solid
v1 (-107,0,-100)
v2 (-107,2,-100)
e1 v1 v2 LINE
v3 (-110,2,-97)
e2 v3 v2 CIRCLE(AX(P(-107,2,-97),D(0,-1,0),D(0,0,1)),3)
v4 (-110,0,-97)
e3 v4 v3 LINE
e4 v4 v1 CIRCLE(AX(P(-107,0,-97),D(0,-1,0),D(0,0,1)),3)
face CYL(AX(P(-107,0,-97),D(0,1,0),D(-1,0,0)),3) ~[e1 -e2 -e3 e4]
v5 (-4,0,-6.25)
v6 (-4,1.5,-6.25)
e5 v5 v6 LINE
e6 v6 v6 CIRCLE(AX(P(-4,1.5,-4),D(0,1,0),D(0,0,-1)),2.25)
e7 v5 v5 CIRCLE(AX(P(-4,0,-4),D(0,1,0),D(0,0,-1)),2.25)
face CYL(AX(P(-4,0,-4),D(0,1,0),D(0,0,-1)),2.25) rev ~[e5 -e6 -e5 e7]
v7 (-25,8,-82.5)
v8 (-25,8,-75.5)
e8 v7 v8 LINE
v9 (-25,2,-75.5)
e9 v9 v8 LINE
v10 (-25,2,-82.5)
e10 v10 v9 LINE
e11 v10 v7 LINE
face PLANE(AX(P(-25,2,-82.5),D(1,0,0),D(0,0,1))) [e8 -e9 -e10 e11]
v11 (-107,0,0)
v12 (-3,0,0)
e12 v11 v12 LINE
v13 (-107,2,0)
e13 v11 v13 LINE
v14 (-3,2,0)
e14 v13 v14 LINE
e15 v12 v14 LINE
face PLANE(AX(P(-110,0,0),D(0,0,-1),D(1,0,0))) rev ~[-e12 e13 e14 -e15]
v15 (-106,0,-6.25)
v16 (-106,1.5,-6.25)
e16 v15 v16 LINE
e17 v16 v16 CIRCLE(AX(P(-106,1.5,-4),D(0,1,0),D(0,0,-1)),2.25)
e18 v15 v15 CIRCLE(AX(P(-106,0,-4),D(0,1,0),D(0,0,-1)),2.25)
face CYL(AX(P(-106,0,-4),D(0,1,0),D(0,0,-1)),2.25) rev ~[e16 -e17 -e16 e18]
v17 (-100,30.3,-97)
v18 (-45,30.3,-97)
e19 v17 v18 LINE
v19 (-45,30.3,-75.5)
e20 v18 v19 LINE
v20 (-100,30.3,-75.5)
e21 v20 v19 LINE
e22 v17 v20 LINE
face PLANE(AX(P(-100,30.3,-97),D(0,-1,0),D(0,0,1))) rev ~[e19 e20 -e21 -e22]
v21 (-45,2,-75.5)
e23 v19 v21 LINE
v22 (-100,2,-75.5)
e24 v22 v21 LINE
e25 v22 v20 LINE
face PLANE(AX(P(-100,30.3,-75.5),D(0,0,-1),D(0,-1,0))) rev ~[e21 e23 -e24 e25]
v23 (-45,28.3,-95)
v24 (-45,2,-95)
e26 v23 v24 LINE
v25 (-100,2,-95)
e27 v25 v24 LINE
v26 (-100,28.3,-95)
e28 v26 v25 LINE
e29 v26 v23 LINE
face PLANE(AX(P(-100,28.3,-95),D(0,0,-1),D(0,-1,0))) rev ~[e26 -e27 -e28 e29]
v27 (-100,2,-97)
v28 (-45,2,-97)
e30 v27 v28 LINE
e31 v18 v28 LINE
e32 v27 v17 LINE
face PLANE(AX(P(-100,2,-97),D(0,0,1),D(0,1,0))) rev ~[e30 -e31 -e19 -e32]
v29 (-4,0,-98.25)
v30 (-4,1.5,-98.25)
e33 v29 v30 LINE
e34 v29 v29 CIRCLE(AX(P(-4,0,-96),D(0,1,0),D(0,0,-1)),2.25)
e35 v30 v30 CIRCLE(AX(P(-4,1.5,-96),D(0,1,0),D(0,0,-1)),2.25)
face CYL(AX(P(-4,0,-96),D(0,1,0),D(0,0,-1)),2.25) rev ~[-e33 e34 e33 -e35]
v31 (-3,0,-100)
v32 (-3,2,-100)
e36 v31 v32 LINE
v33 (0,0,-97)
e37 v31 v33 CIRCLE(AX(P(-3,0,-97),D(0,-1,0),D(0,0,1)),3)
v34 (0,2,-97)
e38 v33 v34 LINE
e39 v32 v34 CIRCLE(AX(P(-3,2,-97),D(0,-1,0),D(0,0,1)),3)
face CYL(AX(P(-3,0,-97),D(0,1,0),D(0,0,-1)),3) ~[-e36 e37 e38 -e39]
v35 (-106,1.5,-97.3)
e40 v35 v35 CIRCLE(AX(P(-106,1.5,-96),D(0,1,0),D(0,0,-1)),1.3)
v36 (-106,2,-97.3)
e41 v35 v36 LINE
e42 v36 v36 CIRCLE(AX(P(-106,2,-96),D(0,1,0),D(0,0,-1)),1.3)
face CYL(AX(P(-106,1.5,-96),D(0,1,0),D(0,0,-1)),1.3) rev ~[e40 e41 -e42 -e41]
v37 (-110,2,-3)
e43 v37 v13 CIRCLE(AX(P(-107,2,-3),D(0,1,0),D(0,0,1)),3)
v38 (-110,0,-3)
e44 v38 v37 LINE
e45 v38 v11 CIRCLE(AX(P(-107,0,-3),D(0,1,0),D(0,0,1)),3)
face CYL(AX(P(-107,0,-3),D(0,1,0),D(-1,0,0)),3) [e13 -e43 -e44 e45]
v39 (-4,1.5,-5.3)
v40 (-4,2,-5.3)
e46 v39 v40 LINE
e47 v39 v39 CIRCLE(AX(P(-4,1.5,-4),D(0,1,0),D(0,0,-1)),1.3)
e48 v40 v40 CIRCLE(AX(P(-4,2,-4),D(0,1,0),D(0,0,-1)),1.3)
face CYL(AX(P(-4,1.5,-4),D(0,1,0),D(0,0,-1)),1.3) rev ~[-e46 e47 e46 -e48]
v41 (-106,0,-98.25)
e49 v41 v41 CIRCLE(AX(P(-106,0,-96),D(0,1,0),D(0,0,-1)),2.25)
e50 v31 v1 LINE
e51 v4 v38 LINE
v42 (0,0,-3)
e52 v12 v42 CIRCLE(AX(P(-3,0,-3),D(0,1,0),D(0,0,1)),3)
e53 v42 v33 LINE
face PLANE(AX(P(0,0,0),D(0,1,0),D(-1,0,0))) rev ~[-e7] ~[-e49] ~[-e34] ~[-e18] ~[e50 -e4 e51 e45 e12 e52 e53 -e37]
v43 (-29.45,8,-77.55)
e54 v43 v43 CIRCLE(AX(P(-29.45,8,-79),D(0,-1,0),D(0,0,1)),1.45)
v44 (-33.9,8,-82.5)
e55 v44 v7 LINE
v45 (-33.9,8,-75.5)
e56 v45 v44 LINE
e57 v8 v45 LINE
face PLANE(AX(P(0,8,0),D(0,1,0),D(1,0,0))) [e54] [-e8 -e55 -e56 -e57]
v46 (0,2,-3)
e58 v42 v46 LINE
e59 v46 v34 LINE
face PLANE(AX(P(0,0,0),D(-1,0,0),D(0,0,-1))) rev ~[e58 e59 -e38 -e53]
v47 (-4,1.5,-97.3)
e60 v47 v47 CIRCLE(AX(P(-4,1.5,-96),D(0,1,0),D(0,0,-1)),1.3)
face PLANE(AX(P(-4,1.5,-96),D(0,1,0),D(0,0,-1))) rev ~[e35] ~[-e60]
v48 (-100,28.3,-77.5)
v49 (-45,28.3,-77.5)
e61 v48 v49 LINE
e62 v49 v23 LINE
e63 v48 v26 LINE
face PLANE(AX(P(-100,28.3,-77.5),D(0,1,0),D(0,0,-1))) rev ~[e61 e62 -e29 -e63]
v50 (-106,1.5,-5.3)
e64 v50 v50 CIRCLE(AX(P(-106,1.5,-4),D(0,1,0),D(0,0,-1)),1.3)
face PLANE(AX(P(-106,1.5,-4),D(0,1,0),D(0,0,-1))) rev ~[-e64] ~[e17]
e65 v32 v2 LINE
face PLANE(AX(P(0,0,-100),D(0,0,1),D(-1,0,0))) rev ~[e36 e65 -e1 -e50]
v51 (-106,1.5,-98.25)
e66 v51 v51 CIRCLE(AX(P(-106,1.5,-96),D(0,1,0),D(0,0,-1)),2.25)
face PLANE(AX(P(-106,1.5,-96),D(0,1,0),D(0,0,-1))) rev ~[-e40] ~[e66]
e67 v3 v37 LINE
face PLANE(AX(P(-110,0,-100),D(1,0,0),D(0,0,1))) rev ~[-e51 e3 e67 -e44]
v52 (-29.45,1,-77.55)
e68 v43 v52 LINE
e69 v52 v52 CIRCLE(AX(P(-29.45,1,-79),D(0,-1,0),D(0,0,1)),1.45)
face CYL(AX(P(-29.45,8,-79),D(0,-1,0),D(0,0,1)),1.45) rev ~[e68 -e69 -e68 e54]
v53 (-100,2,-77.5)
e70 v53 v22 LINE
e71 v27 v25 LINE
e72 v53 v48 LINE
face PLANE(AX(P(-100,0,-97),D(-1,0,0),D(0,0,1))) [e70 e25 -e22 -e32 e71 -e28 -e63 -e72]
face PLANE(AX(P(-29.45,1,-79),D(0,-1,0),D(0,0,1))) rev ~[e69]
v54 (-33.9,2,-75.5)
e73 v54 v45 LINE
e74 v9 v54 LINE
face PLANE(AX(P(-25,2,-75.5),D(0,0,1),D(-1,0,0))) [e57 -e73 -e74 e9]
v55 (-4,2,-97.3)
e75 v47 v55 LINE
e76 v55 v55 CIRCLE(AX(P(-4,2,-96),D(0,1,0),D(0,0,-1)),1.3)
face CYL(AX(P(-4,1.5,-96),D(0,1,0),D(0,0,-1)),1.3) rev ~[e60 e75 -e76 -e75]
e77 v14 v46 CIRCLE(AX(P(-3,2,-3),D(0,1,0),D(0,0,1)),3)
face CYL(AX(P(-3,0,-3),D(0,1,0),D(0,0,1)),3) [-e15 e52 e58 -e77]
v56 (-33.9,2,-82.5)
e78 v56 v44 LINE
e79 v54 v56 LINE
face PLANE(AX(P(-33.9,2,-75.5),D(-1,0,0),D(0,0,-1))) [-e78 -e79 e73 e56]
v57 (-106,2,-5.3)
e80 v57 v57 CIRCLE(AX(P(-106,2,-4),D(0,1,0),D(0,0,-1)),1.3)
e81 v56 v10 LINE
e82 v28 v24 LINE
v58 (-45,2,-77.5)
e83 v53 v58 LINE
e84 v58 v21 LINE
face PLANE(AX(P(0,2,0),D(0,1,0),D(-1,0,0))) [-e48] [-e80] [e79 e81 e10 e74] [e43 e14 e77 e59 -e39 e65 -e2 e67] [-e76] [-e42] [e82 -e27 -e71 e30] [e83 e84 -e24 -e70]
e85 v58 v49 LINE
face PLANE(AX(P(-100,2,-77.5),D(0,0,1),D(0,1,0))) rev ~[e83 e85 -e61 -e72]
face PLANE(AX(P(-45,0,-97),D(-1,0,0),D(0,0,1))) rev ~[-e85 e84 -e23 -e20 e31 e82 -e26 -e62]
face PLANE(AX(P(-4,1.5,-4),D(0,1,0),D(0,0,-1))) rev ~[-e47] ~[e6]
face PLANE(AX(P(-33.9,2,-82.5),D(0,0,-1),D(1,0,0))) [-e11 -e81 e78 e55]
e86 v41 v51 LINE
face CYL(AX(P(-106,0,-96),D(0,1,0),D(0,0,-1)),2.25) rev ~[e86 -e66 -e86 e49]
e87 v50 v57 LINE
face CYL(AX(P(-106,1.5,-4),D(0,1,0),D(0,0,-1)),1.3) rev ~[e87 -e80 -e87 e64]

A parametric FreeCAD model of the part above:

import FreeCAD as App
import Part
import Sketcher
Q = App.Units.Quantity


def edges_at(feature, points):
    """Names of the edges that pass closest to the given points."""
    edges = feature.Shape.Edges
    near = lambda p: min(range(len(edges)), key=lambda i: edges[i].distToShape(Part.Vertex(*p))[0])
    return sorted({f"Edge{near(p) + 1}" for p in points})

doc = App.newDocument("Part")
body = doc.addObject("PartDesign::Body", "Body")

# Sketch on XZ plane
sketch1 = doc.addObject("Sketcher::SketchObject", "Sketch")
body.addObject(sketch1)
sketch1.AttachmentSupport = (doc.XZ_Plane, [""])
sketch1.MapMode = "FlatFace"
sketch1.addGeometry([
    Part.LineSegment(App.Vector(-110, -100, 0), App.Vector(-110, 0, 0)),
    Part.LineSegment(App.Vector(-110, 0, 0), App.Vector(0, 0, 0)),
    Part.LineSegment(App.Vector(0, 0, 0), App.Vector(0, -100, 0)),
    Part.LineSegment(App.Vector(0, -100, 0), App.Vector(-110, -100, 0)),
], False)
sketch1.addConstraint([
    Sketcher.Constraint("Coincident", 0, 2, 1, 1),
    Sketcher.Constraint("Coincident", 1, 2, 2, 1),
    Sketcher.Constraint("Coincident", 2, 2, 3, 1),
    Sketcher.Constraint("Coincident", 3, 2, 0, 1),
    Sketcher.Constraint("Vertical", 0),
    Sketcher.Constraint("Horizontal", 1),
    Sketcher.Constraint("Vertical", 2),
    Sketcher.Constraint("Horizontal", 3),
    Sketcher.Constraint("Coincident", 1, 2, -1, 1),
    Sketcher.Constraint("DistanceX", 1, 1, 1, 2, Q("110 mm")),
    Sketcher.Constraint("DistanceY", 0, 1, 0, 2, Q("100 mm")),
])
pad1 = doc.addObject("PartDesign::Pad", "Pad")
body.addObject(pad1)
pad1.Profile = sketch1
pad1.Length = 2
pad1.Reversed = True

# Sketch on XZ plane
sketch2 = doc.addObject("Sketcher::SketchObject", "Sketch001")
body.addObject(sketch2)
sketch2.AttachmentSupport = (doc.XZ_Plane, [""])
sketch2.MapMode = "FlatFace"
sketch2.addGeometry([
    Part.Circle(App.Vector(-4, -4, 0), App.Vector(0, 0, 1), 1.3),
    Part.Circle(App.Vector(-106, -4, 0), App.Vector(0, 0, 1), 1.3),
    Part.Circle(App.Vector(-106, -96, 0), App.Vector(0, 0, 1), 1.3),
    Part.Circle(App.Vector(-4, -96, 0), App.Vector(0, 0, 1), 1.3),
], False)
sketch2.addConstraint([
    Sketcher.Constraint("Equal", 0, 1),
    Sketcher.Constraint("Equal", 1, 2),
    Sketcher.Constraint("Equal", 2, 3),
    Sketcher.Constraint("Horizontal", 0, 3, 1, 3),
    Sketcher.Constraint("Horizontal", 2, 3, 3, 3),
    Sketcher.Constraint("Vertical", 1, 3, 2, 3),
    Sketcher.Constraint("Vertical", 0, 3, 3, 3),
    Sketcher.Constraint("Diameter", 0, Q("2.6 mm")),
    Sketcher.Constraint("DistanceX", 0, 3, -1, 1, Q("4 mm")),
    Sketcher.Constraint("DistanceY", 0, 3, -1, 1, Q("4 mm")),
    Sketcher.Constraint("DistanceX", 1, 3, -1, 1, Q("106 mm")),
    Sketcher.Constraint("DistanceY", 2, 3, -1, 1, Q("96 mm")),
])
doc.recompute()
hole = doc.addObject("PartDesign::Hole", "Hole")
body.addObject(hole)
hole.Profile = sketch2
hole.ThreadType = "None"
hole.Diameter = 2.6
hole.DepthType = "ThroughAll"
hole.HoleCutType = "Counterbore"
hole.HoleCutDiameter = 4.5
hole.HoleCutDepth = 1.5
doc.recompute()

fillet = doc.addObject("PartDesign::Fillet", "Fillet")
body.addObject(fillet)
fillet.Base = (hole, edges_at(hole, [
    (0, 1, 0),
    (-110, 1, 0),
    (-110, 1, -100),
    (0, 1, -100),
]))
fillet.Radius = 3

# Sketch on YZ plane
sketch3 = doc.addObject("Sketcher::SketchObject", "Sketch002")
body.addObject(sketch3)
sketch3.AttachmentSupport = (doc.YZ_Plane, [""])
sketch3.MapMode = "FlatFace"
sketch3.AttachmentOffset = App.Placement(App.Vector(0, 0, -100), App.Rotation())
sketch3.addGeometry([
    Part.LineSegment(App.Vector(2, -97, 0), App.Vector(2, -95, 0)),  # 0
    Part.LineSegment(App.Vector(2, -95, 0), App.Vector(28.3, -95, 0)),  # 1
    Part.LineSegment(App.Vector(28.3, -95, 0), App.Vector(28.3, -77.5, 0)),  # 2
    Part.LineSegment(App.Vector(28.3, -77.5, 0), App.Vector(2, -77.5, 0)),  # 3
    Part.LineSegment(App.Vector(2, -77.5, 0), App.Vector(2, -75.5, 0)),  # 4
    Part.LineSegment(App.Vector(2, -75.5, 0), App.Vector(30.3, -75.5, 0)),  # 5
    Part.LineSegment(App.Vector(30.3, -75.5, 0), App.Vector(30.3, -97, 0)),  # 6
    Part.LineSegment(App.Vector(30.3, -97, 0), App.Vector(2, -97, 0)),  # 7
], False)
sketch3.addConstraint([
    Sketcher.Constraint("Coincident", 0, 2, 1, 1),
    Sketcher.Constraint("Coincident", 1, 2, 2, 1),
    Sketcher.Constraint("Coincident", 2, 2, 3, 1),
    Sketcher.Constraint("Coincident", 3, 2, 4, 1),
    Sketcher.Constraint("Coincident", 4, 2, 5, 1),
    Sketcher.Constraint("Coincident", 5, 2, 6, 1),
    Sketcher.Constraint("Coincident", 6, 2, 7, 1),
    Sketcher.Constraint("Coincident", 7, 2, 0, 1),
    Sketcher.Constraint("Vertical", 0),
    Sketcher.Constraint("Horizontal", 1),
    Sketcher.Constraint("Vertical", 2),
    Sketcher.Constraint("Horizontal", 3),
    Sketcher.Constraint("Vertical", 4),
    Sketcher.Constraint("Horizontal", 5),
    Sketcher.Constraint("Vertical", 6),
    Sketcher.Constraint("Horizontal", 7),
    Sketcher.Constraint("Vertical", 0, 2, 3, 2),
    Sketcher.Constraint("Equal", 0, 4),
    Sketcher.Constraint("DistanceY", 0, 1, 0, 2, Q("2 mm")),
    Sketcher.Constraint("DistanceX", 1, 1, 1, 2, Q("26.3 mm")),
    Sketcher.Constraint("DistanceY", 2, 1, 2, 2, Q("17.5 mm")),
    Sketcher.Constraint("DistanceX", -1, 1, 0, 2, Q("2 mm")),
    Sketcher.Constraint("DistanceX", 2, 2, 5, 2, Q("2 mm")),
    Sketcher.Constraint("DistanceY", 0, 2, -1, 1, Q("95 mm")),
])
pad2 = doc.addObject("PartDesign::Pad", "Pad001")
body.addObject(pad2)
pad2.Profile = sketch3
pad2.Length = 55

# Sketch on XZ plane
sketch4 = doc.addObject("Sketcher::SketchObject", "Sketch003")
body.addObject(sketch4)
sketch4.AttachmentSupport = (doc.XZ_Plane, [""])
sketch4.MapMode = "FlatFace"
sketch4.AttachmentOffset = App.Placement(App.Vector(0, 0, -2), App.Rotation())
sketch4.addGeometry([
    Part.LineSegment(App.Vector(-25, -82.5, 0), App.Vector(-33.9, -82.5, 0)),
    Part.LineSegment(App.Vector(-33.9, -82.5, 0), App.Vector(-33.9, -75.5, 0)),
    Part.LineSegment(App.Vector(-33.9, -75.5, 0), App.Vector(-25, -75.5, 0)),
    Part.LineSegment(App.Vector(-25, -75.5, 0), App.Vector(-25, -82.5, 0)),
], False)
sketch4.addConstraint([
    Sketcher.Constraint("Coincident", 0, 2, 1, 1),
    Sketcher.Constraint("Coincident", 1, 2, 2, 1),
    Sketcher.Constraint("Coincident", 2, 2, 3, 1),
    Sketcher.Constraint("Coincident", 3, 2, 0, 1),
    Sketcher.Constraint("Horizontal", 0),
    Sketcher.Constraint("Vertical", 1),
    Sketcher.Constraint("Horizontal", 2),
    Sketcher.Constraint("Vertical", 3),
    Sketcher.Constraint("DistanceY", 1, 1, 1, 2, Q("7 mm")),
    Sketcher.Constraint("DistanceX", 0, 2, 0, 1, Q("8.9 mm")),
    Sketcher.Constraint("DistanceX", 2, 2, -1, 1, Q("25 mm")),
    Sketcher.Constraint("DistanceY", 0, 2, -1, 1, Q("82.5 mm")),
])
pad3 = doc.addObject("PartDesign::Pad", "Pad002")
body.addObject(pad3)
pad3.Profile = sketch4
pad3.Length = 6
pad3.Reversed = True

# Sketch on XZ plane
sketch5 = doc.addObject("Sketcher::SketchObject", "Sketch004")
body.addObject(sketch5)
sketch5.AttachmentSupport = (doc.XZ_Plane, [""])
sketch5.MapMode = "FlatFace"
sketch5.AttachmentOffset = App.Placement(App.Vector(0, 0, -8), App.Rotation())
sketch5.addGeometry(Part.Circle(App.Vector(-29.45, -79, 0), App.Vector(0, 0, 1), 1.45), False)
sketch5.addConstraint([
    Sketcher.Constraint("Diameter", 0, Q("2.9 mm")),
    Sketcher.Constraint("DistanceY", 0, 3, -1, 1, Q("79 mm")),
    Sketcher.Constraint("DistanceX", 0, 3, -1, 1, Q("29.45 mm")),
])
doc.recompute()
hole2 = doc.addObject("PartDesign::Hole", "Hole001")
body.addObject(hole2)
hole2.Profile = sketch5
hole2.ThreadType = "None"
hole2.Diameter = 2.9
hole2.DepthType = "Dimension"
hole2.Depth = 7
hole2.DrillPoint = "Flat"
hole2.Reversed = True

doc.recompute()
